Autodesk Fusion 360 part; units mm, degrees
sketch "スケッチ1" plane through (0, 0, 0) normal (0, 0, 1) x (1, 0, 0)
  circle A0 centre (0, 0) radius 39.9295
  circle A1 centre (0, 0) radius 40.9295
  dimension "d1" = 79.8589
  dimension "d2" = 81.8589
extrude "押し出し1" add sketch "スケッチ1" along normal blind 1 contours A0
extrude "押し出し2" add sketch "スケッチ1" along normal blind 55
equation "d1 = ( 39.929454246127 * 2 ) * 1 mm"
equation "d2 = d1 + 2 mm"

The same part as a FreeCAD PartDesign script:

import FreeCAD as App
import Part
import Sketcher
Q = App.Units.Quantity

doc = App.newDocument("Part")
body = doc.addObject("PartDesign::Body", "Body")

# Sketch on XY plane
sketch1 = body.newObject("Sketcher::SketchObject", "Sketch")
sketch1.AttachmentSupport = (doc.getObject("XY_Plane"), [""])
sketch1.MapMode = "FlatFace"
sketch1.addGeometry(Part.Circle(App.Vector(0, 0, 0), App.Vector(0, 0, 1), 40), False)
sketch1.addConstraint([
    Sketcher.Constraint("Coincident", 0, 3, -1, 1),
    Sketcher.Constraint("Diameter", 0, Q("79.859 mm")),
])
pad1 = body.newObject("PartDesign::Pad", "Pad")
pad1.Profile = sketch1
pad1.Length = 1

# Sketch on XY plane
sketch2 = body.newObject("Sketcher::SketchObject", "Sketch001")
sketch2.AttachmentSupport = (doc.getObject("XY_Plane"), [""])
sketch2.MapMode = "FlatFace"
sketch2.addGeometry([
    Part.Circle(App.Vector(0, 0, 0), App.Vector(0, 0, 1), 41),
    Part.Circle(App.Vector(0, 0, 0), App.Vector(0, 0, 1), 40),
], False)
sketch2.addConstraint([
    Sketcher.Constraint("Coincident", 0, 3, -1, 1),
    Sketcher.Constraint("Coincident", 1, 3, -1, 1),
    Sketcher.Constraint("Diameter", 0, Q("81.859 mm")),
    Sketcher.Constraint("Diameter", 1, Q("79.859 mm")),
])
pad2 = body.newObject("PartDesign::Pad", "Pad001")
pad2.Profile = sketch2
pad2.Length = 55

doc.recompute()
